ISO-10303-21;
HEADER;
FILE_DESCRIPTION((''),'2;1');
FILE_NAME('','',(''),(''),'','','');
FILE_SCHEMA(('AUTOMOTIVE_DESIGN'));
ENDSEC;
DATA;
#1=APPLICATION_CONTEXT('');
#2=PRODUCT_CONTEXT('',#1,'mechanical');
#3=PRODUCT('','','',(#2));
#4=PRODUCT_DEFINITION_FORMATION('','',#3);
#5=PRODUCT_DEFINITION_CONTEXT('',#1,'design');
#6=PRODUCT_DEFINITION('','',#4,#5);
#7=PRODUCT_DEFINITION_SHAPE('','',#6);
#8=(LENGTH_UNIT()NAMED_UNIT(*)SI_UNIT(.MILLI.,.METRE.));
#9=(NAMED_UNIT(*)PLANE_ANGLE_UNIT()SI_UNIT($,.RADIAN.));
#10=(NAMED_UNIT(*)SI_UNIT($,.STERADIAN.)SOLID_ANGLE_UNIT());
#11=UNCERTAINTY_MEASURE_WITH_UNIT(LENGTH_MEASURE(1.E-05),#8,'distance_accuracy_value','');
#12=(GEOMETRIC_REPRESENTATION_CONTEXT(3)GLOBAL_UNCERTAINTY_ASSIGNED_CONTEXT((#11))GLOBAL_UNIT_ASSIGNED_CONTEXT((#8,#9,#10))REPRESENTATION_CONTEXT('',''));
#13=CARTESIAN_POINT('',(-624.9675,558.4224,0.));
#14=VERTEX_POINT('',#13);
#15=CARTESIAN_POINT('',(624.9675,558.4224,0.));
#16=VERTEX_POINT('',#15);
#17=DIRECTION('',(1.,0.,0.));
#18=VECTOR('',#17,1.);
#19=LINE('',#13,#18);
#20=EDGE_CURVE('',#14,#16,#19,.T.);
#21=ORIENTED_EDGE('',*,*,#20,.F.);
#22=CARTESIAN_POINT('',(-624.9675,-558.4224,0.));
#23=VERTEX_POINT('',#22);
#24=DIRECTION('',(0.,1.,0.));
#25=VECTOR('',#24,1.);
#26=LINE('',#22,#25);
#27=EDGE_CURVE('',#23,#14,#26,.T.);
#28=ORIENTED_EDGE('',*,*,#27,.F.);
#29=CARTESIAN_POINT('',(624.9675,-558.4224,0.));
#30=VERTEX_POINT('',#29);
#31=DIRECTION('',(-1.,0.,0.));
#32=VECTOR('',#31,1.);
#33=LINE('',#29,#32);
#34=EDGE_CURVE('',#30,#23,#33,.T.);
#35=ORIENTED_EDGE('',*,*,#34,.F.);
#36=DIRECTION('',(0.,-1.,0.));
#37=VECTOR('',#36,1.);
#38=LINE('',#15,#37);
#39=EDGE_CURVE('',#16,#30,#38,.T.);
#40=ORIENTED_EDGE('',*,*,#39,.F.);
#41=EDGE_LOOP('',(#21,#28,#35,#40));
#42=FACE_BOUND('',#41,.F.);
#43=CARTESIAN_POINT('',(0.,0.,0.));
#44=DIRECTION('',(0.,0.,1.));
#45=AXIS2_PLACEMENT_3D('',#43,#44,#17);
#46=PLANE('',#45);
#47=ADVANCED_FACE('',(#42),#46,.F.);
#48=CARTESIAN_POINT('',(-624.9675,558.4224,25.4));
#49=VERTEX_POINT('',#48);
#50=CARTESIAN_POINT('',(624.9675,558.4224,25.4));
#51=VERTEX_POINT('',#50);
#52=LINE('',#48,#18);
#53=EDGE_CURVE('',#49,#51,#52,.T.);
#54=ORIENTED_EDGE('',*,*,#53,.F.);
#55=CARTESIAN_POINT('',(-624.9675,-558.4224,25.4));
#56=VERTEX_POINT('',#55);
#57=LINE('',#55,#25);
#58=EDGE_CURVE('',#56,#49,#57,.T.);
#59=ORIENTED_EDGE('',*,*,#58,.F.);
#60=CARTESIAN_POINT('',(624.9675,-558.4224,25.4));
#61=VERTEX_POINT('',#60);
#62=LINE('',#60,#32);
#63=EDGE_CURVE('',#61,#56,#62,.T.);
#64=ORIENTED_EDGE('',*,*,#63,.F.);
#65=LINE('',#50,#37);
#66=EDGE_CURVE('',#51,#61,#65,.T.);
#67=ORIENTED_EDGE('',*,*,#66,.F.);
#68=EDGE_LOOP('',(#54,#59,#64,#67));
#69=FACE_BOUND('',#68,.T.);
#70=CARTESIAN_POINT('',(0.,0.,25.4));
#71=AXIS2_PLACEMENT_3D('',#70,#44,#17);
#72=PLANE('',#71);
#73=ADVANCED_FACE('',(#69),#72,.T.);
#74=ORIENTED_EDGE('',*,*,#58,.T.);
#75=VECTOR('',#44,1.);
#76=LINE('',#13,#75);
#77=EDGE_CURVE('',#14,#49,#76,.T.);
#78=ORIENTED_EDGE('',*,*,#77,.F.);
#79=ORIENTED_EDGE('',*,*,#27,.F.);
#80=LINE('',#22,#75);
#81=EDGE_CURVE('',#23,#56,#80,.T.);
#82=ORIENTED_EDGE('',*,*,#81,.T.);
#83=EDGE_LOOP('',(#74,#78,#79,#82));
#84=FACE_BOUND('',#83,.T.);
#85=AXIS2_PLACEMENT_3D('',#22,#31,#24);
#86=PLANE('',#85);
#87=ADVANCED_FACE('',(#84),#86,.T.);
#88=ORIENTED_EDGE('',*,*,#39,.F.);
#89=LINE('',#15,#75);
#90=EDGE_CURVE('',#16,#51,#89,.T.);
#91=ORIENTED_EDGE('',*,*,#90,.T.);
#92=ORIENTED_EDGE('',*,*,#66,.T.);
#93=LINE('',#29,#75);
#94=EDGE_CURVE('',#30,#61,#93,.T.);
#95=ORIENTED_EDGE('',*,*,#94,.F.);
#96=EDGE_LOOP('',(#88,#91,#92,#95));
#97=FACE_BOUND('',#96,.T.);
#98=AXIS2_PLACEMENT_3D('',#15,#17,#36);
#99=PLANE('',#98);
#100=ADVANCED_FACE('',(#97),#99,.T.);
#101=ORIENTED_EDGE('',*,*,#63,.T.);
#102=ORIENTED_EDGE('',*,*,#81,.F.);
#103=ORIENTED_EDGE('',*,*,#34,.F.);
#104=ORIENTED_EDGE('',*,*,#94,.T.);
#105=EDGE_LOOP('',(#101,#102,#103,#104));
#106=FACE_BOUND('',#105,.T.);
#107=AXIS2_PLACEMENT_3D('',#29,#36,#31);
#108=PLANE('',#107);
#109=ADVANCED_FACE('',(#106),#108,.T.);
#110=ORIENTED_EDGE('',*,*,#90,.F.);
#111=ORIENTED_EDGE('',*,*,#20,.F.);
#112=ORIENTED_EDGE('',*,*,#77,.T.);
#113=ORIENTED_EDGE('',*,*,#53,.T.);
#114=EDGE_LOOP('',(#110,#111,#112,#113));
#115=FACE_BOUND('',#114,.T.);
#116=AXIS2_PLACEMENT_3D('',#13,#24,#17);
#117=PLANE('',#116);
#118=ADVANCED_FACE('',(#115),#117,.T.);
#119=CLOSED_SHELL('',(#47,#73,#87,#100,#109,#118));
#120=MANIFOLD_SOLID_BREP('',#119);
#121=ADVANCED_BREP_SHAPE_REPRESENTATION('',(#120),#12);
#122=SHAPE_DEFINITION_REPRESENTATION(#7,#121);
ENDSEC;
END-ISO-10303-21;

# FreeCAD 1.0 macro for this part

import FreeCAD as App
import Part
import Sketcher

V = App.Vector
Q = App.Units.Quantity

doc = App.newDocument("Part")
params = doc.addObject("Spreadsheet::Sheet", "Params")
for row, (alias, value) in enumerate([
    ("pad1_length", "1 in"),
], start=1):
    params.set(f"A{row}", alias)
    params.set(f"B{row}", "=" + value)
    params.setAlias(f"B{row}", alias)

body = doc.addObject("PartDesign::Body", "Body")

sketch1 = body.newObject("Sketcher::SketchObject", "Sketch")
sketch1.AttachmentSupport = (doc.getObject("XY_Plane"), [""])
sketch1.MapMode = "FlatFace"
sketch1.addGeometry(Part.LineSegment(V(625, 558, 0), V(-625, 558, 0)), False)
sketch1.addGeometry(Part.LineSegment(V(-625, 558, 0), V(-625, -558, 0)), False)
sketch1.addGeometry(Part.LineSegment(V(-625, -558, 0), V(625, -558, 0)), False)
sketch1.addGeometry(Part.LineSegment(V(625, -558, 0), V(625, 558, 0)), False)
sketch1.addConstraint(Sketcher.Constraint("Coincident", 0, 2, 1, 1))
sketch1.addConstraint(Sketcher.Constraint("Coincident", 1, 2, 2, 1))
sketch1.addConstraint(Sketcher.Constraint("Coincident", 2, 2, 3, 1))
sketch1.addConstraint(Sketcher.Constraint("Coincident", 3, 2, 0, 1))
sketch1.addConstraint(Sketcher.Constraint("Horizontal", 0))
sketch1.addConstraint(Sketcher.Constraint("Vertical", 1))
sketch1.addConstraint(Sketcher.Constraint("Horizontal", 2))
sketch1.addConstraint(Sketcher.Constraint("Vertical", 3))
sketch1.addConstraint(Sketcher.Constraint("Symmetric", 0, 2, 2, 2, -1, 1))
sketch1.addConstraint(Sketcher.Constraint("DistanceX", 0, 2, 0, 1, Q("1249.935 mm")))
sketch1.addConstraint(Sketcher.Constraint("DistanceY", 1, 2, 1, 1, Q("1116.8448 mm")))
pad1 = body.newObject("PartDesign::Pad", "Pad")
pad1.Profile = sketch1
pad1.setExpression("Length", "Params.pad1_length")

doc.recompute()
